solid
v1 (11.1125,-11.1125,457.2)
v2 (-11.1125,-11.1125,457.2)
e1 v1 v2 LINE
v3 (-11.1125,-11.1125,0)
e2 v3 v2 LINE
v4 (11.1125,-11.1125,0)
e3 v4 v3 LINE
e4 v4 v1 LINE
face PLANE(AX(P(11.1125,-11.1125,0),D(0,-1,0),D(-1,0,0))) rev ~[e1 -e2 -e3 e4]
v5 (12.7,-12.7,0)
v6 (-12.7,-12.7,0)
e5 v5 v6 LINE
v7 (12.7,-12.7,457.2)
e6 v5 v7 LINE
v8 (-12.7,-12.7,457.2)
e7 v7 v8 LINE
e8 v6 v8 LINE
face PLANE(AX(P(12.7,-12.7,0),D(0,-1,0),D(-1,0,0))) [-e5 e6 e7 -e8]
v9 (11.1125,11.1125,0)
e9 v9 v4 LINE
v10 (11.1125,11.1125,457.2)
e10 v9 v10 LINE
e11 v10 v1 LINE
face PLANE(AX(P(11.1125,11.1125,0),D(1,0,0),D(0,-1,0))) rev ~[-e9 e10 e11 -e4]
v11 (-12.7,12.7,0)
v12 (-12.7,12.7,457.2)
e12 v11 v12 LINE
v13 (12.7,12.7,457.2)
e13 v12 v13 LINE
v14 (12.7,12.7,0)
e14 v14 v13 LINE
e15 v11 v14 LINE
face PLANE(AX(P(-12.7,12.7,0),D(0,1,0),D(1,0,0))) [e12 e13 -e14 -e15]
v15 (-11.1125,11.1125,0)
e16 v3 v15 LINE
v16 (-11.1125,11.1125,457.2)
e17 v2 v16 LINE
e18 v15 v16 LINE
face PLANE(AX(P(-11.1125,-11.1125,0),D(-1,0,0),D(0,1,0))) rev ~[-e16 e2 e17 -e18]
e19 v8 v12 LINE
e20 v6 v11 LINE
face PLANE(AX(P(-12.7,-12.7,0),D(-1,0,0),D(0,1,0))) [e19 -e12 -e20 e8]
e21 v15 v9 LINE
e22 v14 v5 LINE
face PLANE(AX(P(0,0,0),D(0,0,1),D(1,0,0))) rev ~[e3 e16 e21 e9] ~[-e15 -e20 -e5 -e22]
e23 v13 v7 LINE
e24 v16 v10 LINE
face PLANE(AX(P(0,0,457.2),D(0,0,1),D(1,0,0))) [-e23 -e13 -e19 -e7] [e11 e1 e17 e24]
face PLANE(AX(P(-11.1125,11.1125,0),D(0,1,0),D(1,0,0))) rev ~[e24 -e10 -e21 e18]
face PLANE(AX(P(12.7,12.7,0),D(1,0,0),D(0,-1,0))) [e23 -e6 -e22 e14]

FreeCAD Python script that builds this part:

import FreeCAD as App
import Part
import Sketcher
Q = App.Units.Quantity

doc = App.newDocument("Part")
body = doc.addObject("PartDesign::Body", "Body")

sketch1 = body.newObject("Sketcher::SketchObject", "Sketch")
sketch1.AttachmentSupport = (doc.getObject("XY_Plane"), [""])
sketch1.MapMode = "FlatFace"
sketch1.addGeometry(Part.LineSegment(App.Vector(13, 13, 0), App.Vector(-13, 13, 0)), False)
sketch1.addGeometry(Part.LineSegment(App.Vector(-13, 13, 0), App.Vector(-13, -13, 0)), False)
sketch1.addGeometry(Part.LineSegment(App.Vector(-13, -13, 0), App.Vector(13, -13, 0)), False)
sketch1.addGeometry(Part.LineSegment(App.Vector(13, -13, 0), App.Vector(13, 13, 0)), False)
sketch1.addGeometry(Part.LineSegment(App.Vector(-11, -11, 0), App.Vector(-11, 11, 0)), False)
sketch1.addGeometry(Part.LineSegment(App.Vector(-11, 11, 0), App.Vector(11, 11, 0)), False)
sketch1.addGeometry(Part.LineSegment(App.Vector(11, 11, 0), App.Vector(11, -11, 0)), False)
sketch1.addGeometry(Part.LineSegment(App.Vector(11, -11, 0), App.Vector(-11, -11, 0)), False)
sketch1.addConstraint(Sketcher.Constraint("Coincident", 0, 2, 1, 1))
sketch1.addConstraint(Sketcher.Constraint("Coincident", 1, 2, 2, 1))
sketch1.addConstraint(Sketcher.Constraint("Coincident", 2, 2, 3, 1))
sketch1.addConstraint(Sketcher.Constraint("Coincident", 3, 2, 0, 1))
sketch1.addConstraint(Sketcher.Constraint("Coincident", 4, 2, 5, 1))
sketch1.addConstraint(Sketcher.Constraint("Coincident", 5, 2, 6, 1))
sketch1.addConstraint(Sketcher.Constraint("Coincident", 6, 2, 7, 1))
sketch1.addConstraint(Sketcher.Constraint("Coincident", 7, 2, 4, 1))
sketch1.addConstraint(Sketcher.Constraint("Horizontal", 0))
sketch1.addConstraint(Sketcher.Constraint("Vertical", 1))
sketch1.addConstraint(Sketcher.Constraint("Horizontal", 2))
sketch1.addConstraint(Sketcher.Constraint("Vertical", 3))
sketch1.addConstraint(Sketcher.Constraint("Vertical", 4))
sketch1.addConstraint(Sketcher.Constraint("Horizontal", 5))
sketch1.addConstraint(Sketcher.Constraint("Vertical", 6))
sketch1.addConstraint(Sketcher.Constraint("Horizontal", 7))
sketch1.addConstraint(Sketcher.Constraint("Symmetric", 0, 2, 2, 2, -1, 1))
sketch1.addConstraint(Sketcher.Constraint("Symmetric", 4, 2, 6, 2, -1, 1))
sketch1.addConstraint(Sketcher.Constraint("Equal", 2, 1))
sketch1.addConstraint(Sketcher.Constraint("Equal", 7, 4))
sketch1.addConstraint(Sketcher.Constraint("DistanceX", 0, 2, 0, 1, Q("1 in")))
sketch1.addConstraint(Sketcher.Constraint("DistanceX", 5, 1, 5, 2, Q("0.875 in")))
pad1 = body.newObject("PartDesign::Pad", "Pad")
pad1.Profile = sketch1
pad1.Length = Q("18 in")

doc.recompute()
